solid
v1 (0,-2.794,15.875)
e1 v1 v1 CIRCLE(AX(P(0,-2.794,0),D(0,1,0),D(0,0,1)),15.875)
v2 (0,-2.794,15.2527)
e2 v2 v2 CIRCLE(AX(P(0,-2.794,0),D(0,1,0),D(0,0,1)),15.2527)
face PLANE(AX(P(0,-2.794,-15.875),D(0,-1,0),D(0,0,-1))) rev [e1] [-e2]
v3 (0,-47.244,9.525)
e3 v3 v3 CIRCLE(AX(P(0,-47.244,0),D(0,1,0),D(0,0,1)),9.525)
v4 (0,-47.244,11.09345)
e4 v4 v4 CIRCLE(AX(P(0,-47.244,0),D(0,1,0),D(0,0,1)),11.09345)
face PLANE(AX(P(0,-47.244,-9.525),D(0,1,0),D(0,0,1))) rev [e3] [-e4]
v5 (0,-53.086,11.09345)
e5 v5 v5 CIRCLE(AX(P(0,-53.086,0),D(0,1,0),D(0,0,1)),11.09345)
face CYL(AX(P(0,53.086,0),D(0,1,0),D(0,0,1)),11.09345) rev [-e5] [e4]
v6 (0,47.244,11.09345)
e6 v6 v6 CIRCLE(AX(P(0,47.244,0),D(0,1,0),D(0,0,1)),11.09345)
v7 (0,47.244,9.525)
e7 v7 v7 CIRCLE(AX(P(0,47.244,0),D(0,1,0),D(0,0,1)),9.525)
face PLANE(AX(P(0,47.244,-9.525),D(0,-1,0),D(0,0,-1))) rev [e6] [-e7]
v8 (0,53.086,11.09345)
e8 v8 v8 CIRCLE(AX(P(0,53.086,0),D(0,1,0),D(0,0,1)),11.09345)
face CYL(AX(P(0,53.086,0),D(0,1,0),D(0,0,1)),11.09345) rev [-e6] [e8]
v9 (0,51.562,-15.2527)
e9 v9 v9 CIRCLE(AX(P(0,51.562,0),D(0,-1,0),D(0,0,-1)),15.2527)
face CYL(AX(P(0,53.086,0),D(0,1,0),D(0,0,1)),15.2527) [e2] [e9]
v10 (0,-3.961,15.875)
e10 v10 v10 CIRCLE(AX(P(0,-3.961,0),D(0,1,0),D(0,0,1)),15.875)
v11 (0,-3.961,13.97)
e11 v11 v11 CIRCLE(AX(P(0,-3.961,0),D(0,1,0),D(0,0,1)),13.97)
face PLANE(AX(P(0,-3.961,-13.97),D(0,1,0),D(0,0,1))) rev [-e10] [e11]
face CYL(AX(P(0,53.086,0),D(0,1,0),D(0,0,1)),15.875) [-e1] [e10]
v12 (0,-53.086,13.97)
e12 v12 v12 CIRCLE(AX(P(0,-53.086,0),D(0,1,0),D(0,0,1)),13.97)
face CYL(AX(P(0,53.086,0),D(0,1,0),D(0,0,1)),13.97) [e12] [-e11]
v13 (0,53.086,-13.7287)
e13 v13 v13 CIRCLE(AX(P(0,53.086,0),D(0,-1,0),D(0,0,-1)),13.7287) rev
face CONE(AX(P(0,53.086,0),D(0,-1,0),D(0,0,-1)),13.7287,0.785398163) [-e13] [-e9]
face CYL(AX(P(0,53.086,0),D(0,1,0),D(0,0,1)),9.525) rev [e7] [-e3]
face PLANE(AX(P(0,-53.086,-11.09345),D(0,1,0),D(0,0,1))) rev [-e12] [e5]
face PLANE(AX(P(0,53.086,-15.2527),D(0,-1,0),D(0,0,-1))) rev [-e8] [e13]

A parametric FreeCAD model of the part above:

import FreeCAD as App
import Part
import Sketcher
Q = App.Units.Quantity


def edges_at(feature, points):
    """Names of the edges that pass closest to the given points."""
    edges = feature.Shape.Edges
    near = lambda p: min(range(len(edges)), key=lambda i: edges[i].distToShape(Part.Vertex(*p))[0])
    return sorted({f"Edge{near(p) + 1}" for p in points})


def add_polygon(sketch, points):
    """Adds a closed chain of lines whose ends are joined by coincident constraints."""
    first, n = sketch.GeometryCount, len(points)
    for a, b in zip(points, points[1:] + points[:1]):
        sketch.addGeometry(Part.LineSegment(App.Vector(*a, 0), App.Vector(*b, 0)), False)
    for i in range(n):
        sketch.addConstraint(Sketcher.Constraint("Coincident", first + i, 2, first + (i + 1) % n, 1))

doc = App.newDocument("Part")
body = doc.addObject("PartDesign::Body", "Body")

# Sketch on YZ plane
sketch1 = body.newObject("Sketcher::SketchObject", "Sketch")
sketch1.AttachmentSupport = (doc.getObject("YZ_Plane"), [""])
sketch1.MapMode = "FlatFace"
add_polygon(sketch1, [(-47.244, -11.09345), (-53.086, -11.09345), (-53.086, -13.97), (-3.961, -13.97), (-3.961, -15.875), (-2.794, -15.875), (-2.794, -15.2527), (53.086, -15.2527), (53.086, -11.09345), (47.244, -11.09345), (47.244, -9.525), (-47.244, -9.525)])  # lines 0-11
sketch1.addConstraint(Sketcher.Constraint("Horizontal", 0))
sketch1.addConstraint(Sketcher.Constraint("Vertical", 1))
sketch1.addConstraint(Sketcher.Constraint("Horizontal", 2))
sketch1.addConstraint(Sketcher.Constraint("Vertical", 3))
sketch1.addConstraint(Sketcher.Constraint("Horizontal", 4))
sketch1.addConstraint(Sketcher.Constraint("Vertical", 5))
sketch1.addConstraint(Sketcher.Constraint("Horizontal", 6))
sketch1.addConstraint(Sketcher.Constraint("Vertical", 7))
sketch1.addConstraint(Sketcher.Constraint("Horizontal", 8))
sketch1.addConstraint(Sketcher.Constraint("Vertical", 9))
sketch1.addConstraint(Sketcher.Constraint("Horizontal", 10))
sketch1.addConstraint(Sketcher.Constraint("Vertical", 11))
sketch1.addConstraint(Sketcher.Constraint("Symmetric", 0, 2, 7, 2, -2))
sketch1.addConstraint(Sketcher.Constraint("Equal", 0, 8))
sketch1.addConstraint(Sketcher.Constraint("DistanceX", 6, 1, 6, 2, Q("2.2 in")))
sketch1.addConstraint(Sketcher.Constraint("DistanceX", 0, 2, 0, 1, Q("0.23 in")))
sketch1.addConstraint(Sketcher.Constraint("DistanceX", 10, 2, 10, 1, Q("3.72 in")))
sketch1.addConstraint(Sketcher.Constraint("DistanceY", 3, 2, 3, 1, Q("0.075 in")))
sketch1.addConstraint(Sketcher.Constraint("DistanceY", 1, 2, -1, 1, Q("0.55 in")))
sketch1.addConstraint(Sketcher.Constraint("DistanceY", 4, 2, 9, 2, Q("0.25 in")))
sketch1.addConstraint(Sketcher.Constraint("DistanceY", 5, 1, 5, 2, Q("0.0245 in")))
sketch1.addConstraint(Sketcher.Constraint("DistanceX", 2, 1, 2, 2, 49.125))
sketch1.addConstraint(Sketcher.Constraint("DistanceY", 1, 2, 1, 1, 2.87655))
revolution = body.newObject("PartDesign::Revolution", "Revolution")
revolution.Profile = sketch1
revolution.ReferenceAxis = (sketch1, ["H_Axis"])
revolution.Angle = 360
doc.recompute()

chamfer = body.newObject("PartDesign::Chamfer", "Chamfer")
chamfer.Base = (revolution, edges_at(revolution, [(0, 53.086, -15.253)]))
chamfer.Size = Q("0.06 in")

doc.recompute()
